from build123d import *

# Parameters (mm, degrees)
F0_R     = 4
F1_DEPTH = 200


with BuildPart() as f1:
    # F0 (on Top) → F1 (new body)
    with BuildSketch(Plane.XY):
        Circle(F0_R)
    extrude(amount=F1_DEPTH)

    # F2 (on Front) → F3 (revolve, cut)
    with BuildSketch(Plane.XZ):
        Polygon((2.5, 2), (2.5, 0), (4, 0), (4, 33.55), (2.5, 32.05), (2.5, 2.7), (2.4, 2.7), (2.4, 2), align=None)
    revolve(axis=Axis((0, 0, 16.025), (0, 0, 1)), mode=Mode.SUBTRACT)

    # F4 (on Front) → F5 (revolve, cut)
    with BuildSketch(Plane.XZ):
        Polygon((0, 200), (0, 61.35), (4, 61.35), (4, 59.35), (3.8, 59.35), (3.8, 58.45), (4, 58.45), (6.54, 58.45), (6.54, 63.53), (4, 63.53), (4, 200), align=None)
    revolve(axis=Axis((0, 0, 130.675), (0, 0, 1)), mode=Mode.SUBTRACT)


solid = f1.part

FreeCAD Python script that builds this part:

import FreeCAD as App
import Part
import Sketcher

V = App.Vector
Q = App.Units.Quantity

doc = App.newDocument("Part")
body = doc.addObject("PartDesign::Body", "Body")

sketch1 = body.newObject("Sketcher::SketchObject", "Sketch")
sketch1.AttachmentSupport = (doc.getObject("XY_Plane"), [""])
sketch1.MapMode = "FlatFace"
sketch1.addGeometry(Part.Circle(V(0, 0, 0), V(0, 0, 1), 4), False)
sketch1.addConstraint([
    Sketcher.Constraint("Coincident", 0, 3, -1, 1),
    Sketcher.Constraint("Diameter", 0, Q("8 mm")),
])
pad1 = body.newObject("PartDesign::Pad", "Pad")
pad1.Profile = sketch1
pad1.Length = 200

sketch2 = body.newObject("Sketcher::SketchObject", "Sketch001")
sketch2.AttachmentSupport = (doc.getObject("XZ_Plane"), [""])
sketch2.MapMode = "FlatFace"
sketch2.addGeometry([
    Part.LineSegment(V(2.5, 2, 0), V(2.5, 0, 0)),
    Part.LineSegment(V(2.5, 0, 0), V(4, 0, 0)),
    Part.LineSegment(V(4, 0, 0), V(4, 33.55, 0)),
    Part.LineSegment(V(4, 33.55, 0), V(2.5, 32.05, 0)),
    Part.LineSegment(V(2.5, 32.05, 0), V(2.5, 2.7, 0)),
    Part.LineSegment(V(2.5, 2.7, 0), V(2.4, 2.7, 0)),
    Part.LineSegment(V(2.4, 2.7, 0), V(2.4, 2, 0)),
    Part.LineSegment(V(2.4, 2, 0), V(2.5, 2, 0)),
], False)
sketch2.addConstraint([
    Sketcher.Constraint("Coincident", 0, 2, 1, 1),
    Sketcher.Constraint("Coincident", 1, 2, 2, 1),
    Sketcher.Constraint("Coincident", 2, 2, 3, 1),
    Sketcher.Constraint("Coincident", 3, 2, 4, 1),
    Sketcher.Constraint("Coincident", 4, 2, 5, 1),
    Sketcher.Constraint("Coincident", 5, 2, 6, 1),
    Sketcher.Constraint("Coincident", 6, 2, 7, 1),
    Sketcher.Constraint("Coincident", 7, 2, 0, 1),
    Sketcher.Constraint("Vertical", 0),
    Sketcher.Constraint("Horizontal", 1),
    Sketcher.Constraint("Vertical", 2),
    Sketcher.Constraint("Vertical", 4),
    Sketcher.Constraint("Horizontal", 5),
    Sketcher.Constraint("Vertical", 6),
    Sketcher.Constraint("Horizontal", 7),
    Sketcher.Constraint("PointOnObject", 0, 2, -1),
    Sketcher.Constraint("Vertical", 0, 2, 3, 2),
    Sketcher.Constraint("DistanceY", 0, 2, 0, 1, Q("2 mm")),
    Sketcher.Constraint("Angle", 3, Q("-135 deg")),
    Sketcher.Constraint("DistanceX", 1, 1, 1, 2, Q("1.5 mm")),
    Sketcher.Constraint("DistanceX", 5, 2, 5, 1, Q("0.1 mm")),
    Sketcher.Constraint("DistanceY", 6, 2, 6, 1, Q("0.7 mm")),
    Sketcher.Constraint("DistanceX", -1, 1, 1, 2, Q("4 mm")),
    Sketcher.Constraint("DistanceY", 2, 1, 2, 2, Q("33.55 mm")),
])
groove = body.newObject("PartDesign::Groove", "Groove")
groove.Profile = sketch2
groove.ReferenceAxis = (sketch2, ["V_Axis"])
groove.Angle = 360

sketch3 = body.newObject("Sketcher::SketchObject", "Sketch002")
sketch3.AttachmentSupport = (doc.getObject("XZ_Plane"), [""])
sketch3.MapMode = "FlatFace"
sketch3.addGeometry([
    Part.LineSegment(V(0, 200, 0), V(0, 61.35, 0)),
    Part.LineSegment(V(0, 61.35, 0), V(4, 61.35, 0)),
    Part.LineSegment(V(4, 61.35, 0), V(4, 59.35, 0)),
    Part.LineSegment(V(4, 59.35, 0), V(3.8, 59.35, 0)),
    Part.LineSegment(V(3.8, 59.35, 0), V(3.8, 58.45, 0)),
    Part.LineSegment(V(3.8, 58.45, 0), V(6.54, 58.45, 0)),
    Part.LineSegment(V(6.54, 58.45, 0), V(6.54, 63.53, 0)),
    Part.LineSegment(V(6.54, 63.53, 0), V(4, 63.53, 0)),
    Part.LineSegment(V(4, 63.53, 0), V(4, 200, 0)),
    Part.LineSegment(V(4, 200, 0), V(0, 200, 0)),
], False)
sketch3.addConstraint([
    Sketcher.Constraint("Coincident", 0, 2, 1, 1),
    Sketcher.Constraint("Coincident", 1, 2, 2, 1),
    Sketcher.Constraint("Coincident", 2, 2, 3, 1),
    Sketcher.Constraint("Coincident", 3, 2, 4, 1),
    Sketcher.Constraint("Coincident", 4, 2, 5, 1),
    Sketcher.Constraint("Coincident", 5, 2, 6, 1),
    Sketcher.Constraint("Coincident", 6, 2, 7, 1),
    Sketcher.Constraint("Coincident", 7, 2, 8, 1),
    Sketcher.Constraint("Coincident", 8, 2, 9, 1),
    Sketcher.Constraint("Coincident", 9, 2, 0, 1),
    Sketcher.Constraint("Vertical", 0),
    Sketcher.Constraint("Horizontal", 1),
    Sketcher.Constraint("Vertical", 2),
    Sketcher.Constraint("Horizontal", 3),
    Sketcher.Constraint("Vertical", 4),
    Sketcher.Constraint("Horizontal", 5),
    Sketcher.Constraint("Vertical", 6),
    Sketcher.Constraint("Horizontal", 7),
    Sketcher.Constraint("Vertical", 8),
    Sketcher.Constraint("Horizontal", 9),
    Sketcher.Constraint("PointOnObject", 0, 2, -2),
    Sketcher.Constraint("Vertical", 2, 2, 7, 2),
    Sketcher.Constraint("DistanceX", 1, 1, 1, 2, Q("4 mm")),
    Sketcher.Constraint("DistanceY", 2, 2, 2, 1, Q("2 mm")),
    Sketcher.Constraint("DistanceX", 3, 2, 3, 1, Q("0.2 mm")),
    Sketcher.Constraint("DistanceY", 4, 2, 4, 1, Q("0.9 mm")),
    Sketcher.Constraint("DistanceY", -1, 1, 8, 2, Q("200 mm")),
    Sketcher.Constraint("DistanceX", 5, 1, 5, 2, Q("2.74 mm")),
    Sketcher.Constraint("DistanceY", 0, 2, 0, 1, Q("138.65 mm")),
    Sketcher.Constraint("DistanceY", 6, 1, 6, 2, Q("5.08 mm")),
])
groove2 = body.newObject("PartDesign::Groove", "Groove001")
groove2.Profile = sketch3
groove2.ReferenceAxis = (sketch3, ["V_Axis"])
groove2.Angle = 360

doc.recompute()
